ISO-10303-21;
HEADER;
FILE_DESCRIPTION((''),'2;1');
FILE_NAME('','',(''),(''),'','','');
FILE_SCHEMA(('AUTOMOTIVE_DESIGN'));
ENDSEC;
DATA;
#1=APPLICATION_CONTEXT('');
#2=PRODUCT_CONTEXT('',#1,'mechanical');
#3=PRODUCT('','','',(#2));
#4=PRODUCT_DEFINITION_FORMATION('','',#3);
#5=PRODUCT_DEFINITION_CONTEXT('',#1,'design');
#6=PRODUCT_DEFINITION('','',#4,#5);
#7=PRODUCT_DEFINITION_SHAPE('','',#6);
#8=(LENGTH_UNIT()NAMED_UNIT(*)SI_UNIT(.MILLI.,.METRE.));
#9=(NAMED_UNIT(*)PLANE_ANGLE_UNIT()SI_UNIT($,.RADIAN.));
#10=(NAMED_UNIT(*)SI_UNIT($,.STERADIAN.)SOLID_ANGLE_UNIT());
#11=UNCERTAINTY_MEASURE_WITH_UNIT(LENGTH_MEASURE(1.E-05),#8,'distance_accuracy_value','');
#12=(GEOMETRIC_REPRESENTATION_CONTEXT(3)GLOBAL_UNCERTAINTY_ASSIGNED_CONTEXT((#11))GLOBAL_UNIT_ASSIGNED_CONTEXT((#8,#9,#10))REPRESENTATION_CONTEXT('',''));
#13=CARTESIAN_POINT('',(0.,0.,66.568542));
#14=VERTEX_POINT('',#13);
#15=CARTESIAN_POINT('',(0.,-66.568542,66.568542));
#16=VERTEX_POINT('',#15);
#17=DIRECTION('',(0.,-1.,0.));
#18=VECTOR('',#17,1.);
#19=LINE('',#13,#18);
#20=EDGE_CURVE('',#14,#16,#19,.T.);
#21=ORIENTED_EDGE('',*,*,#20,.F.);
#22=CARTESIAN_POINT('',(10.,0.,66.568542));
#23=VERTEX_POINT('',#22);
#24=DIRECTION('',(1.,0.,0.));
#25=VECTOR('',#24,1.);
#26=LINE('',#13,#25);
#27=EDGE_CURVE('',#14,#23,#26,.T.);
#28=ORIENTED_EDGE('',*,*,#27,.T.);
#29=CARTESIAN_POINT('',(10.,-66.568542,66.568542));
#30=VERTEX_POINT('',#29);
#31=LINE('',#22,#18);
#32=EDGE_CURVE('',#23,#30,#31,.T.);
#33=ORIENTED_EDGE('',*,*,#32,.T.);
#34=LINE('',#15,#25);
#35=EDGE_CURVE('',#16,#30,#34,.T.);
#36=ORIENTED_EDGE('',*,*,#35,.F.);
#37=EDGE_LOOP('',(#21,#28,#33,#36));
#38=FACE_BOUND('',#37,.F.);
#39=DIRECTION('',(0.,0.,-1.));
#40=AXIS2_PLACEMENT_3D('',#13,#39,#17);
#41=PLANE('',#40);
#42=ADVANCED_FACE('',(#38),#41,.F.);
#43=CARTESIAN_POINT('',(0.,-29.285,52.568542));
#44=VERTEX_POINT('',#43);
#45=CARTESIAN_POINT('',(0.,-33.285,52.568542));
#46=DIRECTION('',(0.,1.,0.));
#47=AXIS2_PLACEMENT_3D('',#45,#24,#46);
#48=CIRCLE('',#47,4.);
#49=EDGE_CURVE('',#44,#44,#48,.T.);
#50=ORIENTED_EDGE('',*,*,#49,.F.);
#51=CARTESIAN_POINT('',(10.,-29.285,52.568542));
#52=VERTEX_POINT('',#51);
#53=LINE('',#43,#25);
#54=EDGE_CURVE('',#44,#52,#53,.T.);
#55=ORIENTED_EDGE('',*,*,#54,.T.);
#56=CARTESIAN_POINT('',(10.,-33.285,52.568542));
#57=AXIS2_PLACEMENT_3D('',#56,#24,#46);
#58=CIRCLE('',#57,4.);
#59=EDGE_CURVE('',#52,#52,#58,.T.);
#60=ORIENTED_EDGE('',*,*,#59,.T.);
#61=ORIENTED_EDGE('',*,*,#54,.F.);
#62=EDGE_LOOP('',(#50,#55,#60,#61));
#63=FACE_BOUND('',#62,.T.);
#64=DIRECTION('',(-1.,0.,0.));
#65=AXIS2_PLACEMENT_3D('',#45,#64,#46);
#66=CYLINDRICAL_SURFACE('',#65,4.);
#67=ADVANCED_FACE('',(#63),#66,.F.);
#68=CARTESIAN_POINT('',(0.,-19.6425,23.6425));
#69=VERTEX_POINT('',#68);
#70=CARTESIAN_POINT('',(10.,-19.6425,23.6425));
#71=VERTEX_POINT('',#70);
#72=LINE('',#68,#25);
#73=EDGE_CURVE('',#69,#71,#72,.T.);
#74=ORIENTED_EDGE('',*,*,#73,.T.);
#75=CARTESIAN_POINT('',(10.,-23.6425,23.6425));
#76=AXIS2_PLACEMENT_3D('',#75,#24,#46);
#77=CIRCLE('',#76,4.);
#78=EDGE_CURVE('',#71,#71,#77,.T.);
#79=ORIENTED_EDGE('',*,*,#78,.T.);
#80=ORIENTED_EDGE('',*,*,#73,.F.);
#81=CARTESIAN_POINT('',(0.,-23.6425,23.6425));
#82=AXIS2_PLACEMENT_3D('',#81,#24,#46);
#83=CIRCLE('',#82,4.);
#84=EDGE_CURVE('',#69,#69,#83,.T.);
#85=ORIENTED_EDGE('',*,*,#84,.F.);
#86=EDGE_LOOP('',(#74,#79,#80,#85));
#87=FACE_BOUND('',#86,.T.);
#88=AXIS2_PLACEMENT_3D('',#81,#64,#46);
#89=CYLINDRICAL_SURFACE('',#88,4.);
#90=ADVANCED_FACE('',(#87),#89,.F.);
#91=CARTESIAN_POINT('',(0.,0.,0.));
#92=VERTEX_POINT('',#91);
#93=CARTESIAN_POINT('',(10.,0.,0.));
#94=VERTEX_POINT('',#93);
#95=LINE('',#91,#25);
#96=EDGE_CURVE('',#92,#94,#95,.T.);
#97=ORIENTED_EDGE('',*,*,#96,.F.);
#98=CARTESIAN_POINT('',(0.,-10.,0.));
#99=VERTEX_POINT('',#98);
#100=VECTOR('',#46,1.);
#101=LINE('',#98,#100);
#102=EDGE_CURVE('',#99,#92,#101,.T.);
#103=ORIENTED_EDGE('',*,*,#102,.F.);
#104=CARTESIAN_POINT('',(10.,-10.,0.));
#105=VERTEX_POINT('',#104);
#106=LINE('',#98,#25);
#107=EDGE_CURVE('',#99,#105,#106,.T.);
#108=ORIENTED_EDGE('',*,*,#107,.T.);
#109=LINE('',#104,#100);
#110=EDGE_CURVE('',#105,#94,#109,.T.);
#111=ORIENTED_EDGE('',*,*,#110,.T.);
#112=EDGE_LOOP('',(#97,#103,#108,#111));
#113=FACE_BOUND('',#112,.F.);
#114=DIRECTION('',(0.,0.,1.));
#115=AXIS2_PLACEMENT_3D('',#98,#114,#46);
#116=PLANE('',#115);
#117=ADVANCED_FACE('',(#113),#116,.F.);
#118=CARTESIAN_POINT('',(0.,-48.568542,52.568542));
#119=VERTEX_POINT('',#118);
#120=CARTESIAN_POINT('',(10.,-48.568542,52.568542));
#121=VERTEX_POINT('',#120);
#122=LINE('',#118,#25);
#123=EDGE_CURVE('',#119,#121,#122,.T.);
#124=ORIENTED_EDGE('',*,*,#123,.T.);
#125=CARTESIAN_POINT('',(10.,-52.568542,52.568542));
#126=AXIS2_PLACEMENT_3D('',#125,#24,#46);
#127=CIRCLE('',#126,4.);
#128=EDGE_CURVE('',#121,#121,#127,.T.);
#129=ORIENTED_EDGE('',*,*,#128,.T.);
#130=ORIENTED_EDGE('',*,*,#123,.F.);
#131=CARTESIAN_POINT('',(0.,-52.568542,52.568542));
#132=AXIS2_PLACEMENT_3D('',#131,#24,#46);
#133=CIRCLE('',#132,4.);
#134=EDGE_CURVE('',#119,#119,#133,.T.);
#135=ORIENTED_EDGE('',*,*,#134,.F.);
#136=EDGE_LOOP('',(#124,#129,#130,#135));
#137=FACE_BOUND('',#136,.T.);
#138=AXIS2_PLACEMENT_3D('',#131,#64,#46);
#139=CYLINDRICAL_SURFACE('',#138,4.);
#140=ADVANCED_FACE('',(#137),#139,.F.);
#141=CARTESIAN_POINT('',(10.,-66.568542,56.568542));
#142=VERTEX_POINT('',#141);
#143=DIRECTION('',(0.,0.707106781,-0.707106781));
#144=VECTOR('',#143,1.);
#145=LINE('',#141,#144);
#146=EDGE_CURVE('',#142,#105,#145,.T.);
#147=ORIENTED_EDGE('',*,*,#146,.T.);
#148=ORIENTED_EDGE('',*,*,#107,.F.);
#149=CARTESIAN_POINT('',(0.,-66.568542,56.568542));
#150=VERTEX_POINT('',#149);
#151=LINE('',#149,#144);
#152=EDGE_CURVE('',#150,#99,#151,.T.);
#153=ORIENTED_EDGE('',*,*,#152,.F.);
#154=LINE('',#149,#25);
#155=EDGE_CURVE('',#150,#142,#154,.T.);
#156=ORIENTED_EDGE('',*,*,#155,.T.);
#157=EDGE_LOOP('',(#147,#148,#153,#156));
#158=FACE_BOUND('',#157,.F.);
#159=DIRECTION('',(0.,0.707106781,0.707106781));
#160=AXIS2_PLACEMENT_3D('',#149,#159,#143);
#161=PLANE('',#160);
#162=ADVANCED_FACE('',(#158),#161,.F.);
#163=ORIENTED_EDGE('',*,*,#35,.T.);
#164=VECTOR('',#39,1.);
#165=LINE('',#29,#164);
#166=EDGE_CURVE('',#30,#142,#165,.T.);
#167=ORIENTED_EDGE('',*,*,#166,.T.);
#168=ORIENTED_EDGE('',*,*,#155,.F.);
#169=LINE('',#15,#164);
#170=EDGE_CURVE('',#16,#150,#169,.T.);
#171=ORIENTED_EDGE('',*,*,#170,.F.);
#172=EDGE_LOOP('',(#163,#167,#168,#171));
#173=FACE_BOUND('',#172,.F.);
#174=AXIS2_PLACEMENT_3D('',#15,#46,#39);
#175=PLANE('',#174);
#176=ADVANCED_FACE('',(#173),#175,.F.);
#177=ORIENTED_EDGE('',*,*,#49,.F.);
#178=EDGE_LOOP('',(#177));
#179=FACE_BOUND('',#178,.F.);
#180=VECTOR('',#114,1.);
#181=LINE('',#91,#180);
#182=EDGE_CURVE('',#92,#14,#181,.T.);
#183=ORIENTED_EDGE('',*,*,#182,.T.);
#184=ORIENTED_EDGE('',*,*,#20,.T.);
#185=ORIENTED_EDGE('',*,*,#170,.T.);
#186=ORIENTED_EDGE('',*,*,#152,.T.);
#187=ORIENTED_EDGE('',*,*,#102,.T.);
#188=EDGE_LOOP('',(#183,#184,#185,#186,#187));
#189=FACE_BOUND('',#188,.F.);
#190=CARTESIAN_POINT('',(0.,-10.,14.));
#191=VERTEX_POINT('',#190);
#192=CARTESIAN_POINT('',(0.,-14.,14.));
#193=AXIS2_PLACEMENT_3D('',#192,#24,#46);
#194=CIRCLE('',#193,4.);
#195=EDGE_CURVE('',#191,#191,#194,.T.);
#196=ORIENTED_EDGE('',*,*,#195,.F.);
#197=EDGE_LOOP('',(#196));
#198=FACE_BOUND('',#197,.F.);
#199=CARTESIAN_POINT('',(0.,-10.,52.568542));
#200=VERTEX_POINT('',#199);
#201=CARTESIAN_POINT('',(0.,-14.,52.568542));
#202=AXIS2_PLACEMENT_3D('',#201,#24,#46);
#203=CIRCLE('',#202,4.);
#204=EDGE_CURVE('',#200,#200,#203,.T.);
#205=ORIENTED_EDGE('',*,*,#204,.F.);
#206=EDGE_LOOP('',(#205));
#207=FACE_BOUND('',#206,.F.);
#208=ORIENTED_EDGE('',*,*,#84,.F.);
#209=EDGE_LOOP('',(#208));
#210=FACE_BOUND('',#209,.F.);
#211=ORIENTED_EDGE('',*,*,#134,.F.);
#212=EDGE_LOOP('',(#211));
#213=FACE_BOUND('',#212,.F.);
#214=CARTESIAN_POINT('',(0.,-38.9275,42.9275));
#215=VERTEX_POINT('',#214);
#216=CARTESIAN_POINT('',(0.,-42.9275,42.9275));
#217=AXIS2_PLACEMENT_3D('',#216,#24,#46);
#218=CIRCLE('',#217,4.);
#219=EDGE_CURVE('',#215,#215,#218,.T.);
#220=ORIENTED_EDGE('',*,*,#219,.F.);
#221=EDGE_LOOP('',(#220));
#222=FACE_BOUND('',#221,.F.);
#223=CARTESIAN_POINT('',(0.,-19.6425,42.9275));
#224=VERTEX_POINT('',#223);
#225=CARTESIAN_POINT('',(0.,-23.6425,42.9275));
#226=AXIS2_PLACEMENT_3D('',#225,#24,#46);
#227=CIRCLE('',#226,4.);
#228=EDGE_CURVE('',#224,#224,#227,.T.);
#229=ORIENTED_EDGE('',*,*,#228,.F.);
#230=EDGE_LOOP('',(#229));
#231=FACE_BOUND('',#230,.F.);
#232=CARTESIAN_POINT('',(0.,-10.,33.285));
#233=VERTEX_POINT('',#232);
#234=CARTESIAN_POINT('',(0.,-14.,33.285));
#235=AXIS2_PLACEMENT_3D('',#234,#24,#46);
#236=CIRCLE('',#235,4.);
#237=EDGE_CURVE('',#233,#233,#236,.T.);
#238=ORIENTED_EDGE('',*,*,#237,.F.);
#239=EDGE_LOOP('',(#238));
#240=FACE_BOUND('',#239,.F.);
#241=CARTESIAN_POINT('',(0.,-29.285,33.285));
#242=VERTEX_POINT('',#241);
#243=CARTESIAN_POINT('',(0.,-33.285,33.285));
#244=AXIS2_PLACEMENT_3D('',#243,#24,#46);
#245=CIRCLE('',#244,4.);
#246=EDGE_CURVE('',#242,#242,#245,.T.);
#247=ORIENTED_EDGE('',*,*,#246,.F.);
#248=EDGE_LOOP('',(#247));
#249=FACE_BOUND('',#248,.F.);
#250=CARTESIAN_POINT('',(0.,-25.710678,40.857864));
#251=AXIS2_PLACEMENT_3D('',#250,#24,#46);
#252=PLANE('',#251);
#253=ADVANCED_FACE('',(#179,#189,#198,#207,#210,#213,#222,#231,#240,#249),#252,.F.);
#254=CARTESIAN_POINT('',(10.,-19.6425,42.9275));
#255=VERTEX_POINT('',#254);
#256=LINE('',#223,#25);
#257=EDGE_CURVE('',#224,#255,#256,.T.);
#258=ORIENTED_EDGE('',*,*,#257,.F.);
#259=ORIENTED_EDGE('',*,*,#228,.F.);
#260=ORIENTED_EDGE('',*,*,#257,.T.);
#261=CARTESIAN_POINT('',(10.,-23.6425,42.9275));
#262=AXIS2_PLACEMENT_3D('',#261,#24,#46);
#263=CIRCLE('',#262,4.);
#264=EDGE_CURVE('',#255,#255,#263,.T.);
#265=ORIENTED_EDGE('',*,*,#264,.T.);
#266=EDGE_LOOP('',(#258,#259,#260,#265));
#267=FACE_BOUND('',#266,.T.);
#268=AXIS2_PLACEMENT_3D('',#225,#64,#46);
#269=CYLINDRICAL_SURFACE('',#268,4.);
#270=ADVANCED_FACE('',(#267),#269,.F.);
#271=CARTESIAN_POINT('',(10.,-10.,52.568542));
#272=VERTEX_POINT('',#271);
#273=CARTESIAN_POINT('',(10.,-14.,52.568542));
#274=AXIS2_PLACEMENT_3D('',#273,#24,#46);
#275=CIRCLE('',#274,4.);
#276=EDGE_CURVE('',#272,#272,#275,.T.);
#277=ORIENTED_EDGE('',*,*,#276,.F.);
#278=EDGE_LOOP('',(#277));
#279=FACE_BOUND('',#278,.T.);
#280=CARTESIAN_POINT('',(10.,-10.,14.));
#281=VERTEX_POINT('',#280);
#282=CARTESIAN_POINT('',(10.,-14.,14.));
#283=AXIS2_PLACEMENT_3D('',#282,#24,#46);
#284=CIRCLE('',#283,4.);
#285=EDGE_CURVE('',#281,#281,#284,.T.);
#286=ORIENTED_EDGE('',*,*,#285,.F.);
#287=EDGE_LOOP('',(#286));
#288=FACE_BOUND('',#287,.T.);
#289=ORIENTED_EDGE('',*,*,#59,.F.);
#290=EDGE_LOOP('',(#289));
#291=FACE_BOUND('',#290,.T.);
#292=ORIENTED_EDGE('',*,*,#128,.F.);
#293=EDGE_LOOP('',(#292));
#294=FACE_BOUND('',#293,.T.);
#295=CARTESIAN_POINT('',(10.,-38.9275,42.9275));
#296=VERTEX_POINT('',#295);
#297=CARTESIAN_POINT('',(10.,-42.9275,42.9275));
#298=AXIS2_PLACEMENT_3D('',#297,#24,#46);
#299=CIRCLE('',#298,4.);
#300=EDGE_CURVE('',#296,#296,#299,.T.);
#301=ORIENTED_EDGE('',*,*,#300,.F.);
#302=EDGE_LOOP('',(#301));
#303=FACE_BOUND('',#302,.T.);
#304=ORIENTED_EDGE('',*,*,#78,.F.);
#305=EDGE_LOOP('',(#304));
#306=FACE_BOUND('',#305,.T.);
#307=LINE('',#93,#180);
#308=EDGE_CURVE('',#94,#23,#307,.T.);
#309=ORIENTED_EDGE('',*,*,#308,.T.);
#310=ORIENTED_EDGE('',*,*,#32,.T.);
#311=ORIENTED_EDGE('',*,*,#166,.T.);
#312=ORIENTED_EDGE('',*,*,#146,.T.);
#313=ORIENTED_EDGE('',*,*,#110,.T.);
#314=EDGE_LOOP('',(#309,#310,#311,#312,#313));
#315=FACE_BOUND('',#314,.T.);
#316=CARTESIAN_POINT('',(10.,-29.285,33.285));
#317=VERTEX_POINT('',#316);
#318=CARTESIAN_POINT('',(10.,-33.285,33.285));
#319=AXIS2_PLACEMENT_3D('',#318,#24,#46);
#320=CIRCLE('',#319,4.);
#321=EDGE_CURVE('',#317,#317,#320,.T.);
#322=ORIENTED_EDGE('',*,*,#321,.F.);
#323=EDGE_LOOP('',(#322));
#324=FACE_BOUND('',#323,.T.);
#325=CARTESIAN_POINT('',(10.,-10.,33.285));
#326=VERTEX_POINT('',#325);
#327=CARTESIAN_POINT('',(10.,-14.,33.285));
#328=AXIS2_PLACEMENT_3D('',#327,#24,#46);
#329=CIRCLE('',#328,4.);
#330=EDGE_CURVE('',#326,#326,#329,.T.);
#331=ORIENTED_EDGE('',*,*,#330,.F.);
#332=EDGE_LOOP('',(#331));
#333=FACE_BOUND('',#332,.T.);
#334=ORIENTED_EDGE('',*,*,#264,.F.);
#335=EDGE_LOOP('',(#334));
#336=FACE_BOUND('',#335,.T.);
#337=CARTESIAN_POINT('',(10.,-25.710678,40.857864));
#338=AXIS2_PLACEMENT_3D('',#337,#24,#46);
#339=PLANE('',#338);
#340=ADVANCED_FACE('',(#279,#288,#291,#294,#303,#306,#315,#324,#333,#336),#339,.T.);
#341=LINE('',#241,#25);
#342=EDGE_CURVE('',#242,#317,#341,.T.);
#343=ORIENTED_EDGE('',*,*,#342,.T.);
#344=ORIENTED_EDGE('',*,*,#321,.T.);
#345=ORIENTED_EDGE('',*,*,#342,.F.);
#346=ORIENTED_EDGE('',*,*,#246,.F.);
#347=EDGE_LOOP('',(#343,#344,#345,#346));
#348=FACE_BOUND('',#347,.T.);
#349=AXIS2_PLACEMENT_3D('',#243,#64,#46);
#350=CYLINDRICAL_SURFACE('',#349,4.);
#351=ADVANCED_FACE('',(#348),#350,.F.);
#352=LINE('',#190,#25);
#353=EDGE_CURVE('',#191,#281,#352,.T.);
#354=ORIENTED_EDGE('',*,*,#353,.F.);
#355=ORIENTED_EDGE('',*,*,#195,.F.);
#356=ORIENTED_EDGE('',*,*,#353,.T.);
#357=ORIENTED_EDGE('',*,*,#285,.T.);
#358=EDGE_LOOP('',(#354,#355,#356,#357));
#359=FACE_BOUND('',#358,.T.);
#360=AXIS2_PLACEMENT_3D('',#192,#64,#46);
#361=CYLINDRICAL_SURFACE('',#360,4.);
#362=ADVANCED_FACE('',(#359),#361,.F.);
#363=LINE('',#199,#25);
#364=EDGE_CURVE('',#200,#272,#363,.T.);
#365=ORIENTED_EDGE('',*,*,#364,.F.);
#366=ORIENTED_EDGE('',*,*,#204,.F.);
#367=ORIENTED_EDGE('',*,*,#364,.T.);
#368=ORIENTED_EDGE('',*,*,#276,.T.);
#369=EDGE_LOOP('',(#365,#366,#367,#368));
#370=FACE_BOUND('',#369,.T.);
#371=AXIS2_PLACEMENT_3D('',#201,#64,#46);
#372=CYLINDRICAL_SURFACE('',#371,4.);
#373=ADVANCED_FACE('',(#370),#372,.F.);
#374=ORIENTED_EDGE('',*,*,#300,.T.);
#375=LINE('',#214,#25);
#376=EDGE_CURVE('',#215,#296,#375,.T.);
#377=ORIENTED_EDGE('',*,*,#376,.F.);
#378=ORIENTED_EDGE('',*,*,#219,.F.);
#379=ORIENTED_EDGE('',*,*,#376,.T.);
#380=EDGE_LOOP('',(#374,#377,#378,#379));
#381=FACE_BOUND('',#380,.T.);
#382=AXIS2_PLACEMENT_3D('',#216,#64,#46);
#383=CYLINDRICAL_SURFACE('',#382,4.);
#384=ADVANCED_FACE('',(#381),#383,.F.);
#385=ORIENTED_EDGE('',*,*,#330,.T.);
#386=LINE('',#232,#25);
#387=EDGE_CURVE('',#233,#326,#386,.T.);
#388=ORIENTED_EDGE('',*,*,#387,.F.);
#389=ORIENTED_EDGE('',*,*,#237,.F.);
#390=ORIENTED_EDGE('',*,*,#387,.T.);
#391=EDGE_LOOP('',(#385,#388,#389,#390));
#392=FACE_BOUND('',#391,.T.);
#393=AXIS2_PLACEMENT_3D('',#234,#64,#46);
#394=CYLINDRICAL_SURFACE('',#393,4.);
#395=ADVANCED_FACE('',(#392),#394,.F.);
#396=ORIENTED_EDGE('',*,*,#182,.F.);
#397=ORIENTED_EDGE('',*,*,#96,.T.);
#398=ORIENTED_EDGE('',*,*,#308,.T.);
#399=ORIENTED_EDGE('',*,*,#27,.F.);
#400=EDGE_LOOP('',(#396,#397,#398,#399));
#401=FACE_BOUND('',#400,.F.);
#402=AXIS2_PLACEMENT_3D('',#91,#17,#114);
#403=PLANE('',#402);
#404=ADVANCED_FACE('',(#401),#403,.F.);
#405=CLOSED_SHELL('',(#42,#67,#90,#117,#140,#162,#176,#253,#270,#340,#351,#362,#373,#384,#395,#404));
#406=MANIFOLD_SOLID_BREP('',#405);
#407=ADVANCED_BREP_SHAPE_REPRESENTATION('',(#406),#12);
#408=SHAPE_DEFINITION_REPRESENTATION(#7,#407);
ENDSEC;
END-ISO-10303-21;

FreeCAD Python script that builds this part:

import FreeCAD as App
import Part
import Sketcher
from FreeCAD import Vector
Q = App.Units.Quantity


def add_polygon(sketch, points):
    """Adds a closed chain of lines whose ends are joined by coincident constraints."""
    first, n = sketch.GeometryCount, len(points)
    for a, b in zip(points, points[1:] + points[:1]):
        sketch.addGeometry(Part.LineSegment(App.Vector(*a, 0), App.Vector(*b, 0)), False)
    for i in range(n):
        sketch.addConstraint(Sketcher.Constraint("Coincident", first + i, 2, first + (i + 1) % n, 1))

doc = App.newDocument("Part")
body = doc.addObject("PartDesign::Body", "Body")

# Sketch on YZ plane
sketch1 = body.newObject("Sketcher::SketchObject", "Sketch")
sketch1.AttachmentSupport = (doc.getObject("YZ_Plane"), [""])
sketch1.MapMode = "FlatFace"
add_polygon(sketch1, [(0, 0), (0, 66.6), (-66.6, 66.6), (-66.6, 56.6), (-10, 0)])  # lines 0-4
sketch1.addGeometry(Part.Circle(Vector(-14, 14, 0), Vector(0, 0, 1), 4), False)  # 5
sketch1.addGeometry(Part.Circle(Vector(-23.6, 23.6, 0), Vector(0, 0, 1), 4), False)  # 6
sketch1.addGeometry(Part.Circle(Vector(-33.3, 33.3, 0), Vector(0, 0, 1), 4), False)  # 7
sketch1.addGeometry(Part.Circle(Vector(-42.9, 42.9, 0), Vector(0, 0, 1), 4), False)  # 8
sketch1.addGeometry(Part.Circle(Vector(-52.6, 52.6, 0), Vector(0, 0, 1), 4), False)  # 9
sketch1.addGeometry(Part.Circle(Vector(-33.3, 52.6, 0), Vector(0, 0, 1), 4), False)  # 10
sketch1.addGeometry(Part.Circle(Vector(-23.6, 42.9, 0), Vector(0, 0, 1), 4), False)  # 11
sketch1.addGeometry(Part.Circle(Vector(-14, 33.3, 0), Vector(0, 0, 1), 4), False)  # 12
sketch1.addGeometry(Part.Circle(Vector(-14, 52.6, 0), Vector(0, 0, 1), 4), False)  # 13
sketch1.addConstraint(Sketcher.Constraint("Vertical", 0))
sketch1.addConstraint(Sketcher.Constraint("Horizontal", 1))
sketch1.addConstraint(Sketcher.Constraint("Vertical", 2))
sketch1.addConstraint(Sketcher.Constraint("Horizontal", 4))
sketch1.addConstraint(Sketcher.Constraint("Coincident", 4, 2, -1, 1))
sketch1.addConstraint(Sketcher.Constraint("Equal", 5, 6))
sketch1.addConstraint(Sketcher.Constraint("Equal", 6, 7))
sketch1.addConstraint(Sketcher.Constraint("Equal", 7, 8))
sketch1.addConstraint(Sketcher.Constraint("Equal", 8, 9))
sketch1.addConstraint(Sketcher.Constraint("Equal", 9, 10))
sketch1.addConstraint(Sketcher.Constraint("Equal", 10, 11))
sketch1.addConstraint(Sketcher.Constraint("Equal", 11, 12))
sketch1.addConstraint(Sketcher.Constraint("Equal", 12, 13))
sketch1.addConstraint(Sketcher.Constraint("Horizontal", 9, 3, 10, 3))
sketch1.addConstraint(Sketcher.Constraint("Horizontal", 8, 3, 11, 3))
sketch1.addConstraint(Sketcher.Constraint("Horizontal", 7, 3, 12, 3))
sketch1.addConstraint(Sketcher.Constraint("Horizontal", 10, 3, 13, 3))
sketch1.addConstraint(Sketcher.Constraint("Vertical", 7, 3, 10, 3))
sketch1.addConstraint(Sketcher.Constraint("Vertical", 6, 3, 11, 3))
sketch1.addConstraint(Sketcher.Constraint("Vertical", 5, 3, 12, 3))
sketch1.addConstraint(Sketcher.Constraint("Vertical", 12, 3, 13, 3))
sketch1.addConstraint(Sketcher.Constraint("Equal", 1, 0))
sketch1.addConstraint(Sketcher.Constraint("Equal", 4, 2))
sketch1.addConstraint(Sketcher.Constraint("Diameter", 5, Q("8 mm")))
sketch1.addConstraint(Sketcher.Constraint("DistanceX", 4, 1, 4, 2, Q("10 mm")))
sketch1.addConstraint(Sketcher.Constraint("Distance", 3, Q("79.999999 mm")))
sketch1.addConstraint(Sketcher.Constraint("DistanceX", 5, 3, -1, 1, Q("14 mm")))
sketch1.addConstraint(Sketcher.Constraint("DistanceY", -1, 1, 5, 3, Q("14 mm")))
sketch1.addConstraint(Sketcher.Constraint("DistanceY", 13, 3, 0, 2, Q("14 mm")))
sketch1.addConstraint(Sketcher.Constraint("DistanceX", 1, 2, 9, 3, Q("14 mm")))
sketch1.addConstraint(Sketcher.Constraint("DistanceX", 7, 3, -1, 1, Q("33.285 mm")))
sketch1.addConstraint(Sketcher.Constraint("DistanceY", -1, 1, 7, 3, Q("33.285 mm")))
sketch1.addConstraint(Sketcher.Constraint("DistanceX", 8, 3, 6, 3, Q("19.285 mm")))
sketch1.addConstraint(Sketcher.Constraint("DistanceY", 6, 3, 8, 3, Q("19.285 mm")))
sketch1.addConstraint(Sketcher.Constraint("DistanceX", 6, 3, -1, 1, Q("23.6425 mm")))
sketch1.addConstraint(Sketcher.Constraint("DistanceY", -1, 1, 6, 3, Q("23.6425 mm")))
pad1 = body.newObject("PartDesign::Pad", "Pad")
pad1.Profile = sketch1
pad1.Length = 10

doc.recompute()
